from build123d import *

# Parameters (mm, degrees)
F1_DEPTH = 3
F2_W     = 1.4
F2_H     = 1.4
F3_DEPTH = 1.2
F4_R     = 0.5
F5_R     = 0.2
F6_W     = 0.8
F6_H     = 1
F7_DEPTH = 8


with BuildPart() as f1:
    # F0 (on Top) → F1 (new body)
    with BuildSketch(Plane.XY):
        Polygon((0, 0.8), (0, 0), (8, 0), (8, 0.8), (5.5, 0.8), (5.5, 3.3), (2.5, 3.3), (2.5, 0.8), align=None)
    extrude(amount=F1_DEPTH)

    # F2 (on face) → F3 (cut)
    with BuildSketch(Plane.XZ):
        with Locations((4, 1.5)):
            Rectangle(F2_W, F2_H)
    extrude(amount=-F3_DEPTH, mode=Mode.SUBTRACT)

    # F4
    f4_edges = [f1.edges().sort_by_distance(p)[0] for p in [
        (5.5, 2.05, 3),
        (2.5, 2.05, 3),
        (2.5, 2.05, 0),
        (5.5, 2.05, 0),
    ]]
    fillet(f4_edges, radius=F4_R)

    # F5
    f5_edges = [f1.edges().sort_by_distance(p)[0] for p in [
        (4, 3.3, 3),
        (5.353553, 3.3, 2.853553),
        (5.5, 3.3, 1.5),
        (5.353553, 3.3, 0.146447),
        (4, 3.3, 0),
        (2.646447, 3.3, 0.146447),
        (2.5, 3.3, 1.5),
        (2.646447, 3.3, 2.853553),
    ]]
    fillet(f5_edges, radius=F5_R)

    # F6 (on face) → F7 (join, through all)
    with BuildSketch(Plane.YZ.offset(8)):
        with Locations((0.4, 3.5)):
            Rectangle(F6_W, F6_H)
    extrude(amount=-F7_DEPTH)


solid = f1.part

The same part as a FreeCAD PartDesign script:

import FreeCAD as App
import Part
import Sketcher

V = App.Vector
Q = App.Units.Quantity


def edges_at(feature, points):
    """Names of the edges that pass closest to the given points."""
    edges = feature.Shape.Edges
    near = lambda p: min(range(len(edges)), key=lambda i: edges[i].distToShape(Part.Vertex(*p))[0])
    return sorted({f"Edge{near(p) + 1}" for p in points})


def add_polygon(sketch, points):
    """Adds a closed chain of lines whose ends are joined by coincident constraints."""
    first, n = sketch.GeometryCount, len(points)
    for a, b in zip(points, points[1:] + points[:1]):
        sketch.addGeometry(Part.LineSegment(App.Vector(*a, 0), App.Vector(*b, 0)), False)
    for i in range(n):
        sketch.addConstraint(Sketcher.Constraint("Coincident", first + i, 2, first + (i + 1) % n, 1))

doc = App.newDocument("Part")
body = doc.addObject("PartDesign::Body", "Body")

sketch1 = doc.addObject("Sketcher::SketchObject", "Sketch")
body.addObject(sketch1)
sketch1.AttachmentSupport = (doc.XY_Plane, [""])
sketch1.MapMode = "FlatFace"
add_polygon(sketch1, [(0, 0.8), (0, 0), (8, 0), (8, 0.8), (5.5, 0.8), (5.5, 3.3), (2.5, 3.3), (2.5, 0.8)])
sketch1.addConstraint([
    Sketcher.Constraint("Vertical", 0),
    Sketcher.Constraint("Horizontal", 1),
    Sketcher.Constraint("Vertical", 2),
    Sketcher.Constraint("Horizontal", 3),
    Sketcher.Constraint("Vertical", 4),
    Sketcher.Constraint("Horizontal", 5),
    Sketcher.Constraint("Vertical", 6),
    Sketcher.Constraint("Horizontal", 7),
    Sketcher.Constraint("Coincident", 0, 2, -1, 1),
    Sketcher.Constraint("Horizontal", 3, 2, 6, 2),
    Sketcher.Constraint("Equal", 3, 7),
    Sketcher.Constraint("Equal", 7, 4),
    Sketcher.Constraint("DistanceX", 1, 1, 1, 2, Q("8 mm")),
    Sketcher.Constraint("DistanceX", 5, 2, 5, 1, Q("3 mm")),
    Sketcher.Constraint("DistanceY", 0, 2, 0, 1, Q("0.8 mm")),
])
pad1 = doc.addObject("PartDesign::Pad", "Pad")
body.addObject(pad1)
pad1.Profile = sketch1
pad1.Length = 3

sketch2 = doc.addObject("Sketcher::SketchObject", "Sketch001")
body.addObject(sketch2)
sketch2.AttachmentSupport = (doc.XZ_Plane, [""])
sketch2.MapMode = "FlatFace"
add_polygon(sketch2, [(3.3, 2.2), (3.3, 0.8), (4.7, 0.8), (4.7, 2.2)])
sketch2.addConstraint([
    Sketcher.Constraint("Vertical", 0),
    Sketcher.Constraint("Horizontal", 1),
    Sketcher.Constraint("Vertical", 2),
    Sketcher.Constraint("Horizontal", 3),
    Sketcher.Constraint("Equal", 3, 0),
    Sketcher.Constraint("DistanceX", 1, 1, 1, 2, Q("1.4 mm")),
    Sketcher.Constraint("DistanceX", -1, 1, 0, 2, Q("3.3 mm")),
    Sketcher.Constraint("DistanceY", -1, 1, 0, 2, Q("0.8 mm")),
])
pocket1 = doc.addObject("PartDesign::Pocket", "Pocket")
body.addObject(pocket1)
pocket1.Profile = sketch2
pocket1.Length = 1.2
doc.recompute()

fillet = doc.addObject("PartDesign::Fillet", "Fillet")
body.addObject(fillet)
fillet.Base = (pocket1, edges_at(pocket1, [
    (5.5, 2.05, 3),
    (2.5, 2.05, 3),
    (2.5, 2.05, 0),
    (5.5, 2.05, 0),
]))
fillet.Radius = 0.5
doc.recompute()

fillet2 = doc.addObject("PartDesign::Fillet", "Fillet001")
body.addObject(fillet2)
fillet2.Base = (fillet, edges_at(fillet, [
    (4, 3.3, 3),
    (5.354, 3.3, 2.854),
    (5.5, 3.3, 1.5),
    (5.354, 3.3, 0.146),
    (4, 3.3, 0),
    (2.646, 3.3, 0.146),
    (2.5, 3.3, 1.5),
    (2.646, 3.3, 2.854),
]))
fillet2.Radius = 0.2

sketch3 = doc.addObject("Sketcher::SketchObject", "Sketch002")
body.addObject(sketch3)
sketch3.AttachmentSupport = (doc.YZ_Plane, [""])
sketch3.MapMode = "FlatFace"
sketch3.AttachmentOffset = App.Placement(V(0, 0, 8), App.Rotation())
add_polygon(sketch3, [(0, 4), (0, 3), (0.8, 3), (0.8, 4)])
sketch3.addConstraint([
    Sketcher.Constraint("Vertical", 0),
    Sketcher.Constraint("Horizontal", 1),
    Sketcher.Constraint("Vertical", 2),
    Sketcher.Constraint("Horizontal", 3),
    Sketcher.Constraint("PointOnObject", 0, 2, -2),
    Sketcher.Constraint("DistanceY", 0, 2, 0, 1, Q("1 mm")),
    Sketcher.Constraint("DistanceX", 1, 1, 1, 2, Q("0.8 mm")),
    Sketcher.Constraint("DistanceY", -1, 1, 0, 2, Q("3 mm")),
])
pad2 = doc.addObject("PartDesign::Pad", "Pad001")
body.addObject(pad2)
pad2.Profile = sketch3
pad2.Length = 8
pad2.Reversed = True

doc.recompute()
